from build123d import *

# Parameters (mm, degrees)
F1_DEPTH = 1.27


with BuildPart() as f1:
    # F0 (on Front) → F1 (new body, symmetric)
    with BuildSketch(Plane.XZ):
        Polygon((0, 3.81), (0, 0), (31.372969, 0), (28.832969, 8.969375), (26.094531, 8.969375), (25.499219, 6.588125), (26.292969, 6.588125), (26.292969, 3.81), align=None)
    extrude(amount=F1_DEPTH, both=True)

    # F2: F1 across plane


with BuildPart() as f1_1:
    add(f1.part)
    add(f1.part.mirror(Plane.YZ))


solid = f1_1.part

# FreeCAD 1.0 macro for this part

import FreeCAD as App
import Part
import Sketcher

V = App.Vector
Q = App.Units.Quantity


def add_polygon(sketch, points):
    """Adds a closed chain of lines whose ends are joined by coincident constraints."""
    first, n = sketch.GeometryCount, len(points)
    for a, b in zip(points, points[1:] + points[:1]):
        sketch.addGeometry(Part.LineSegment(App.Vector(*a, 0), App.Vector(*b, 0)), False)
    for i in range(n):
        sketch.addConstraint(Sketcher.Constraint("Coincident", first + i, 2, first + (i + 1) % n, 1))

doc = App.newDocument("Part")
body = doc.addObject("PartDesign::Body", "Body")

# Sketch on XZ plane
sketch1 = body.newObject("Sketcher::SketchObject", "Sketch")
sketch1.AttachmentSupport = (doc.getObject("XZ_Plane"), [""])
sketch1.MapMode = "FlatFace"
add_polygon(sketch1, [(0, 3.8), (0, 0), (31.4, 0), (28.8, 9), (26.1, 9), (25.5, 6.6), (26.3, 6.6), (26.3, 3.8)])  # lines 0-7
sketch1.addConstraint([
    Sketcher.Constraint("Vertical", 0),
    Sketcher.Constraint("Horizontal", 1),
    Sketcher.Constraint("Horizontal", 3),
    Sketcher.Constraint("Horizontal", 5),
    Sketcher.Constraint("Vertical", 6),
    Sketcher.Constraint("Horizontal", 7),
    Sketcher.Constraint("Coincident", 0, 2, -1, 1),
    Sketcher.Constraint("DistanceY", 0, 2, 0, 1, Q("0.15 in")),
    Sketcher.Constraint("DistanceX", 2, 2, 1, 2, Q("0.1 in")),
    Sketcher.Constraint("DistanceX", 5, 2, 2, 2, Q("0.1 in")),
    Sketcher.Constraint("DistanceX", 5, 1, 5, 2, Q("0.03125 in")),
    Sketcher.Constraint("DistanceY", 6, 2, 6, 1, Q("0.109375 in")),
    Sketcher.Constraint("DistanceY", 4, 2, 3, 2, Q("0.09375 in")),
    Sketcher.Constraint("DistanceX", 1, 1, 1, 2, 31.372969),
    Sketcher.Constraint("DistanceX", 3, 2, 3, 1, 2.738438),
])
pad1 = body.newObject("PartDesign::Pad", "Pad")
pad1.Profile = sketch1
pad1.Length = Q("0.1 in")
pad1.Midplane = True
body2 = doc.addObject("PartDesign::Body", "Body001")
doc.recompute()

body2.BaseFeature = body
doc.recompute()

mirroring = doc.addObject("Part::Mirroring", "Mirroring")
mirroring.Source = body
mirroring.Base = V(0, 0, 0)
mirroring.Normal = V(1, 0, 0)
body3 = doc.addObject("PartDesign::Body", "Body002")
body3.BaseFeature = mirroring
boolean = body2.newObject("PartDesign::Boolean", "Boolean")
boolean.Type = "Fuse"
boolean.addObjects([body3])
doc.recompute()
mirroring.Visibility = False

doc.recompute()
